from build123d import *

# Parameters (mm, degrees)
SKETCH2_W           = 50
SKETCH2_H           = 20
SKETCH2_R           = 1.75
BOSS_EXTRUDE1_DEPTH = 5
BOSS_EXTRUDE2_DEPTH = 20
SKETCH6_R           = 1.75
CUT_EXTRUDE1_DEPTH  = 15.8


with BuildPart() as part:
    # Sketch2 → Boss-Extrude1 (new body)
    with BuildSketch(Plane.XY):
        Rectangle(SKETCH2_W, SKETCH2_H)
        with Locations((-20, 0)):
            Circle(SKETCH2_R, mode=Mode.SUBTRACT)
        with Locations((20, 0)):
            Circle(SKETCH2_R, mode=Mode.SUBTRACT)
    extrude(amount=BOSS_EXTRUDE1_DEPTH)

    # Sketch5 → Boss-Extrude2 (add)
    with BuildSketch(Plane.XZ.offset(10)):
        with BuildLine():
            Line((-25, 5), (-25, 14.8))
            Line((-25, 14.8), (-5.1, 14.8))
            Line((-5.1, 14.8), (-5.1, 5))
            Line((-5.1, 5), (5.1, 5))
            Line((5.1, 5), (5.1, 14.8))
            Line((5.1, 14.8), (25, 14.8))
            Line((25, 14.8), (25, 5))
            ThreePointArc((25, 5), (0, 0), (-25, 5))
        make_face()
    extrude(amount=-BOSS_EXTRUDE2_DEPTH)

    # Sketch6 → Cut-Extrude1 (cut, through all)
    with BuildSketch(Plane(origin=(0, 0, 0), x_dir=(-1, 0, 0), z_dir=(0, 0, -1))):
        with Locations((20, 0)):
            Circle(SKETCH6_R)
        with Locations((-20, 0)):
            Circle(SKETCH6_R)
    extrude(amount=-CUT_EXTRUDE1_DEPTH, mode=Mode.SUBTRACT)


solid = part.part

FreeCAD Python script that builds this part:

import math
import FreeCAD as App
import Part
import Sketcher
from FreeCAD import Vector


def add_polygon(sketch, points):
    """Adds a closed chain of lines whose ends are joined by coincident constraints."""
    first, n = sketch.GeometryCount, len(points)
    for a, b in zip(points, points[1:] + points[:1]):
        sketch.addGeometry(Part.LineSegment(App.Vector(*a, 0), App.Vector(*b, 0)), False)
    for i in range(n):
        sketch.addConstraint(Sketcher.Constraint("Coincident", first + i, 2, first + (i + 1) % n, 1))

doc = App.newDocument("Part")
body = doc.addObject("PartDesign::Body", "Body")

sketch1 = body.newObject("Sketcher::SketchObject", "Sketch")
sketch1.AttachmentSupport = (doc.getObject("XY_Plane"), [""])
sketch1.MapMode = "FlatFace"
add_polygon(sketch1, [(-25, 10), (-25, -10), (25, -10), (25, 10)])
sketch1.addGeometry(Part.Circle(Vector(-20, 0, 0), Vector(0, 0, 1), 1.8), False)
sketch1.addGeometry(Part.Circle(Vector(20, 0, 0), Vector(0, 0, 1), 1.8), False)
sketch1.addConstraint([
    Sketcher.Constraint("Vertical", 0),
    Sketcher.Constraint("Horizontal", 1),
    Sketcher.Constraint("Vertical", 2),
    Sketcher.Constraint("Horizontal", 3),
    Sketcher.Constraint("Equal", 4, 5),
    Sketcher.Constraint("Symmetric", 4, 3, 5, 3, -1, 1),
    Sketcher.Constraint("Symmetric", 0, 2, 2, 2, -1, 1),
    Sketcher.Constraint("PointOnObject", 4, 3, -1),
    Sketcher.Constraint("Diameter", 4, 3.5),
    Sketcher.Constraint("DistanceX", 1, 1, 1, 2, 50.0),
    Sketcher.Constraint("DistanceY", 0, 2, 0, 1, 20.0),
    Sketcher.Constraint("DistanceX", 4, 3, -1, 1, 20.0),
])
pad1 = body.newObject("PartDesign::Pad", "Pad")
pad1.Profile = sketch1
pad1.Length = 5

sketch2 = body.newObject("Sketcher::SketchObject", "Sketch001")
sketch2.AttachmentSupport = (doc.getObject("XZ_Plane"), [""])
sketch2.MapMode = "FlatFace"
sketch2.AttachmentOffset = App.Placement(Vector(0, 0, 10), App.Rotation())
sketch2.addGeometry([
    Part.LineSegment(Vector(-25, 15, 0), Vector(-25, 5, 0)),
    Part.ArcOfCircle(Part.Circle(Vector(0, 65, 0), Vector(0, 0, 1), 65), math.radians(-113), math.radians(-67)),
    Part.LineSegment(Vector(25, 5, 0), Vector(25, 15, 0)),
    Part.LineSegment(Vector(25, 15, 0), Vector(5, 15, 0)),
    Part.LineSegment(Vector(5, 15, 0), Vector(5, 5, 0)),
    Part.LineSegment(Vector(5, 5, 0), Vector(-5, 5, 0)),
    Part.LineSegment(Vector(-5, 5, 0), Vector(-5, 15, 0)),
    Part.LineSegment(Vector(-5, 15, 0), Vector(-25, 15, 0)),
], False)
sketch2.addConstraint([
    Sketcher.Constraint("Coincident", 0, 2, 1, 1),
    Sketcher.Constraint("Coincident", 1, 2, 2, 1),
    Sketcher.Constraint("Coincident", 2, 2, 3, 1),
    Sketcher.Constraint("Coincident", 3, 2, 4, 1),
    Sketcher.Constraint("Coincident", 4, 2, 5, 1),
    Sketcher.Constraint("Coincident", 5, 2, 6, 1),
    Sketcher.Constraint("Coincident", 6, 2, 7, 1),
    Sketcher.Constraint("Coincident", 7, 2, 0, 1),
    Sketcher.Constraint("Vertical", 0),
    Sketcher.Constraint("Vertical", 2),
    Sketcher.Constraint("Horizontal", 3),
    Sketcher.Constraint("Vertical", 4),
    Sketcher.Constraint("Horizontal", 5),
    Sketcher.Constraint("Vertical", 6),
    Sketcher.Constraint("Horizontal", 7),
    Sketcher.Constraint("Symmetric", 0, 2, 1, 2, -2),
    Sketcher.Constraint("Symmetric", 3, 2, 6, 2, -2),
    Sketcher.Constraint("Horizontal", 1, 2, 4, 2),
    Sketcher.Constraint("Radius", 1, 65.0),
    Sketcher.Constraint("DistanceX", 3, 2, 3, 1, 19.9),
    Sketcher.Constraint("DistanceX", 5, 2, 5, 1, 10.2),
    Sketcher.Constraint("DistanceY", 0, 2, 0, 1, 9.8),
    Sketcher.Constraint("DistanceY", -1, 1, 1, 3, 65.0),
])
pad2 = body.newObject("PartDesign::Pad", "Pad001")
pad2.Profile = sketch2
pad2.Length = 20
pad2.Reversed = True

sketch3 = body.newObject("Sketcher::SketchObject", "Sketch002")
sketch3.AttachmentSupport = (doc.getObject("XY_Plane"), [""])
sketch3.MapMode = "FlatFace"
sketch3.addGeometry([
    Part.Circle(Vector(-20, 0, 0), Vector(0, 0, 1), 1.8),
    Part.Circle(Vector(20, 0, 0), Vector(0, 0, 1), 1.8),
], False)
sketch3.addConstraint([
    Sketcher.Constraint("Equal", 0, 1),
    Sketcher.Constraint("Symmetric", 0, 3, 1, 3, -1, 1),
    Sketcher.Constraint("PointOnObject", 0, 3, -1),
    Sketcher.Constraint("Diameter", 0, 3.5),
    Sketcher.Constraint("DistanceX", 0, 3, -1, 1, 20.0),
])
pocket1 = body.newObject("PartDesign::Pocket", "Pocket")
pocket1.Profile = sketch3
pocket1.Type = "ThroughAll"
pocket1.Reversed = True

doc.recompute()
